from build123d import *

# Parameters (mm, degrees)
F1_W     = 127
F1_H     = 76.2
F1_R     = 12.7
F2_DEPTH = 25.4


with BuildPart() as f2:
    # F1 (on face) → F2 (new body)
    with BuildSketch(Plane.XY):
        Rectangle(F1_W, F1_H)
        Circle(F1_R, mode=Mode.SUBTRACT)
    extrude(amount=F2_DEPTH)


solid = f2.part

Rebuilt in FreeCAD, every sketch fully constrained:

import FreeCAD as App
import Part
import Sketcher

V = App.Vector
Q = App.Units.Quantity


def add_polygon(sketch, points):
    """Adds a closed chain of lines whose ends are joined by coincident constraints."""
    first, n = sketch.GeometryCount, len(points)
    for a, b in zip(points, points[1:] + points[:1]):
        sketch.addGeometry(Part.LineSegment(App.Vector(*a, 0), App.Vector(*b, 0)), False)
    for i in range(n):
        sketch.addConstraint(Sketcher.Constraint("Coincident", first + i, 2, first + (i + 1) % n, 1))

doc = App.newDocument("Part")
body = doc.addObject("PartDesign::Body", "Body")

sketch1 = body.newObject("Sketcher::SketchObject", "Sketch")
sketch1.AttachmentSupport = (doc.getObject("XY_Plane"), [""])
sketch1.MapMode = "FlatFace"
add_polygon(sketch1, [(-64, 38), (-64, -38), (64, -38), (64, 38)])
sketch1.addGeometry(Part.Circle(V(0, 0, 0), V(0, 0, 1), 13), False)
sketch1.addConstraint([
    Sketcher.Constraint("Vertical", 0),
    Sketcher.Constraint("Horizontal", 1),
    Sketcher.Constraint("Vertical", 2),
    Sketcher.Constraint("Horizontal", 3),
    Sketcher.Constraint("Coincident", 4, 3, -1, 1),
    Sketcher.Constraint("Symmetric", 0, 2, 2, 2, -1, 1),
    Sketcher.Constraint("Diameter", 4, Q("1 in")),
    Sketcher.Constraint("DistanceX", 1, 1, 1, 2, Q("5 in")),
    Sketcher.Constraint("DistanceY", 0, 2, 0, 1, Q("3 in")),
])
pad1 = body.newObject("PartDesign::Pad", "Pad")
pad1.Profile = sketch1
pad1.Length = Q("1 in")

doc.recompute()
